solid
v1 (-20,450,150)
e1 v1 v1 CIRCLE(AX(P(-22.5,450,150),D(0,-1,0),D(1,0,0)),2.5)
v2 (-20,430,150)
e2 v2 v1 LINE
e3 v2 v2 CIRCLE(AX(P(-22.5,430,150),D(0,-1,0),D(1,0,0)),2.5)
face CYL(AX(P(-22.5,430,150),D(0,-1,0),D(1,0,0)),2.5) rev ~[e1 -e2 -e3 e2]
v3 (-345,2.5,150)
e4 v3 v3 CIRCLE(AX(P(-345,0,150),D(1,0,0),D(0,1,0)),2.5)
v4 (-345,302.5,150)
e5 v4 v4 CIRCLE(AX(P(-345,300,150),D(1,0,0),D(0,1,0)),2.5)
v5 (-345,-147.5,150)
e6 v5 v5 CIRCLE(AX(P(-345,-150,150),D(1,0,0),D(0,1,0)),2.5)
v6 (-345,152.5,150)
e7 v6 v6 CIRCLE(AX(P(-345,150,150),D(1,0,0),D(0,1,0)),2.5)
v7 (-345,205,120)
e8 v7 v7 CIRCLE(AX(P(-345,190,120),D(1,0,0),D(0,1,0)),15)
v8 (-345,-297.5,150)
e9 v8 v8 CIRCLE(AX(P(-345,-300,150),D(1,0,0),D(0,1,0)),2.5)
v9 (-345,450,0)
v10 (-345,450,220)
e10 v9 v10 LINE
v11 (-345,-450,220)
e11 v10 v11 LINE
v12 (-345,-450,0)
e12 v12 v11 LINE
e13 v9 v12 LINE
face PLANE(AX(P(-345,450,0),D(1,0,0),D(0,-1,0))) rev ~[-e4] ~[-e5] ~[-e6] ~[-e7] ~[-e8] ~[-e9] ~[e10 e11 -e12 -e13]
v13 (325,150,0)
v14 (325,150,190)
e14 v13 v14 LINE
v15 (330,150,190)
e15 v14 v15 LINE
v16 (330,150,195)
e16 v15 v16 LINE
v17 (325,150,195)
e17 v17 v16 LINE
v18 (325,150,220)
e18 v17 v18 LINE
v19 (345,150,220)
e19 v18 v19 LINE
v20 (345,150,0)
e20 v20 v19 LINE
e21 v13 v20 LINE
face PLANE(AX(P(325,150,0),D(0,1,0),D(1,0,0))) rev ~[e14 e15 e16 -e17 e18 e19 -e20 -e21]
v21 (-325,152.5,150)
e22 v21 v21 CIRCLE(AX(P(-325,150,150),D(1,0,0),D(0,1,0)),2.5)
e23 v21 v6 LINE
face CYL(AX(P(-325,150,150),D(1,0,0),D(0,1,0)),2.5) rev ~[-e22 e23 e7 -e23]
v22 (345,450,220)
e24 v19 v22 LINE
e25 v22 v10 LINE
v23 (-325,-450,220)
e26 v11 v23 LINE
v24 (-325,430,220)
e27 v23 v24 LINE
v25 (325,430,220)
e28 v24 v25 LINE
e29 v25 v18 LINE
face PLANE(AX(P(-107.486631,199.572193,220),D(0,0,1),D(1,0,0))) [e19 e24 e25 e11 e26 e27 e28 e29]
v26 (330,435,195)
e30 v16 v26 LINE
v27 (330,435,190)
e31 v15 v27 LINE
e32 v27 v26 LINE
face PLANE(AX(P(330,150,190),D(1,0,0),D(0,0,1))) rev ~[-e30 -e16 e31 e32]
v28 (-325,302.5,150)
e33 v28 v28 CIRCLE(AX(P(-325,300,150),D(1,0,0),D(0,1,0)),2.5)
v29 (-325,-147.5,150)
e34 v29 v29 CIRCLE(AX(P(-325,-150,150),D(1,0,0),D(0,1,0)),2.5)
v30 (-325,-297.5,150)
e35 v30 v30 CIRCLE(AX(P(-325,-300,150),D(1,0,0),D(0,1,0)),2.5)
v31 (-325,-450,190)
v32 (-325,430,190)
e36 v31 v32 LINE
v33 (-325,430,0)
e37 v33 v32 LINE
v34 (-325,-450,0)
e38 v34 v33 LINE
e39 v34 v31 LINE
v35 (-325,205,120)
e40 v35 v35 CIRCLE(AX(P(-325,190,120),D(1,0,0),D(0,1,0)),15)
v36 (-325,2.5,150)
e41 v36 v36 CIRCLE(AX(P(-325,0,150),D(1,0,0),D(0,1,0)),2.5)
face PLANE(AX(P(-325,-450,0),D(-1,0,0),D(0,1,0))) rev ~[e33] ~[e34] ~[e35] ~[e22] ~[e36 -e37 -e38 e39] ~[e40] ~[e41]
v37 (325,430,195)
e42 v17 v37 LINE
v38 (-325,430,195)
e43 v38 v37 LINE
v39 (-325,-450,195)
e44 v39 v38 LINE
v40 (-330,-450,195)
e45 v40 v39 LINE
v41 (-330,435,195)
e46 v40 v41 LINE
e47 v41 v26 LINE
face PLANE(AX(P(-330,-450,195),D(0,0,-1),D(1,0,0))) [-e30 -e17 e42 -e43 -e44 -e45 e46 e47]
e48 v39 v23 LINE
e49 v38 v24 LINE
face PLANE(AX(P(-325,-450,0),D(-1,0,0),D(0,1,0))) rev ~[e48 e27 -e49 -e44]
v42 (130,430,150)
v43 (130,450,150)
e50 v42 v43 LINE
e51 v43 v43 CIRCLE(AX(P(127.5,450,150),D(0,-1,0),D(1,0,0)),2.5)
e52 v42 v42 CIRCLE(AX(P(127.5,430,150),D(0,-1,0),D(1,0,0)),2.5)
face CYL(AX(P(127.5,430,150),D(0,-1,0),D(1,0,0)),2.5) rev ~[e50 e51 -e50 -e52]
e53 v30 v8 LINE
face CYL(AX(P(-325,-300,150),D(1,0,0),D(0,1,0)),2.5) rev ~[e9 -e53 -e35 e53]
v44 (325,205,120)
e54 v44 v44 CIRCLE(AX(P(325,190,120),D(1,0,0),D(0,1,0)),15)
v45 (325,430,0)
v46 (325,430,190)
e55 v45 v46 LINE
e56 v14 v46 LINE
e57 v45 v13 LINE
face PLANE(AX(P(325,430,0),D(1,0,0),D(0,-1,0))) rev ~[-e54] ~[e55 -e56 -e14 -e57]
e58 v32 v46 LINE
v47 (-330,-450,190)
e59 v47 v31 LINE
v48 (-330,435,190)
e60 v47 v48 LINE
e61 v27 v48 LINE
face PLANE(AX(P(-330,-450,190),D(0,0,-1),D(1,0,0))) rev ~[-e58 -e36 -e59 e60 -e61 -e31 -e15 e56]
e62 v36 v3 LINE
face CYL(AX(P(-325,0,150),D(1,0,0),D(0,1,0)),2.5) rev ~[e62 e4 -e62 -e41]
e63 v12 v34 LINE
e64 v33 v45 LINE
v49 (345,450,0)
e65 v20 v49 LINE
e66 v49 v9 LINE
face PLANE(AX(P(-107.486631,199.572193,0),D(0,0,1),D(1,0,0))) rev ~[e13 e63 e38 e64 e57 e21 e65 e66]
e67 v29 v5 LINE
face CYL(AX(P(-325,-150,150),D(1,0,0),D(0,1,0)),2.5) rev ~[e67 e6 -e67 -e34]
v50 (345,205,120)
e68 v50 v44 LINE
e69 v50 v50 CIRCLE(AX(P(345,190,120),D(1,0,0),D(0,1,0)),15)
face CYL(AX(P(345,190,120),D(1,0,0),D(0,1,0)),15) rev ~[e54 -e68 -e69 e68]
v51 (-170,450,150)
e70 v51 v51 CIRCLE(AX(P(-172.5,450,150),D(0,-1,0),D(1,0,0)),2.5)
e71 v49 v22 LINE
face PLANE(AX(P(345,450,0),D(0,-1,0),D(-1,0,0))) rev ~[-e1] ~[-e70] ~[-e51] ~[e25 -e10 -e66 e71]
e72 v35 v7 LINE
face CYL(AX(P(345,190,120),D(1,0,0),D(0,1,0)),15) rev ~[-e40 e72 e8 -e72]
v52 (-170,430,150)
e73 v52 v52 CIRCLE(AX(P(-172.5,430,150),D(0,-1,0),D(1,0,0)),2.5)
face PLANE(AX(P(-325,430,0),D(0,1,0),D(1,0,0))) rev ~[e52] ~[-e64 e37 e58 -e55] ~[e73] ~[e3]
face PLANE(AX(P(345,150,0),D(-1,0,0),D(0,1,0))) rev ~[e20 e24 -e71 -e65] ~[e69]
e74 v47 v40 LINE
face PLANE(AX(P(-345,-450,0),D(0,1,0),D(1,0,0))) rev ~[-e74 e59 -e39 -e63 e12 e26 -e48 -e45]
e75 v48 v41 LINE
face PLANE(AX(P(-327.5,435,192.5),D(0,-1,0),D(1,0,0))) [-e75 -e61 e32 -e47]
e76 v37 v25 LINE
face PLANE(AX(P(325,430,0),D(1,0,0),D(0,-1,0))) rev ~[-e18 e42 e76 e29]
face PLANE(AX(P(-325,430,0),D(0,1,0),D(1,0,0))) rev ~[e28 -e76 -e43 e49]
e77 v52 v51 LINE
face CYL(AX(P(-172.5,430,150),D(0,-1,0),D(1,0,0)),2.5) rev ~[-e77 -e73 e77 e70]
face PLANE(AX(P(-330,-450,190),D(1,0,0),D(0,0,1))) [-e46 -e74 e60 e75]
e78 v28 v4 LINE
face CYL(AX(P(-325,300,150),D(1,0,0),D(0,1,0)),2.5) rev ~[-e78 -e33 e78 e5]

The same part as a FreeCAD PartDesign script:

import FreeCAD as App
import Part
import Sketcher
from FreeCAD import Vector
Q = App.Units.Quantity

doc = App.newDocument("Part")
body = doc.addObject("PartDesign::Body", "Body")

sketch1 = body.newObject("Sketcher::SketchObject", "Sketch")
sketch1.AttachmentSupport = (doc.getObject("XY_Plane"), [""])
sketch1.MapMode = "FlatFace"
sketch1.addGeometry([
    Part.LineSegment(Vector(-345, -450, 0), Vector(-325, -450, 0)),
    Part.LineSegment(Vector(-325, -450, 0), Vector(-325, 430, 0)),
    Part.LineSegment(Vector(-325, 430, 0), Vector(325, 430, 0)),
    Part.LineSegment(Vector(325, 430, 0), Vector(325, 150, 0)),
    Part.LineSegment(Vector(325, 150, 0), Vector(345, 150, 0)),
    Part.LineSegment(Vector(345, 150, 0), Vector(345, 450, 0)),
    Part.LineSegment(Vector(345, 450, 0), Vector(-345, 450, 0)),
    Part.LineSegment(Vector(-345, 450, 0), Vector(-345, -450, 0)),
], False)
sketch1.addConstraint([
    Sketcher.Constraint("Coincident", 0, 2, 1, 1),
    Sketcher.Constraint("Coincident", 1, 2, 2, 1),
    Sketcher.Constraint("Coincident", 2, 2, 3, 1),
    Sketcher.Constraint("Coincident", 3, 2, 4, 1),
    Sketcher.Constraint("Coincident", 4, 2, 5, 1),
    Sketcher.Constraint("Coincident", 5, 2, 6, 1),
    Sketcher.Constraint("Coincident", 6, 2, 7, 1),
    Sketcher.Constraint("Coincident", 7, 2, 0, 1),
    Sketcher.Constraint("Horizontal", 0),
    Sketcher.Constraint("Vertical", 1),
    Sketcher.Constraint("Horizontal", 2),
    Sketcher.Constraint("Vertical", 3),
    Sketcher.Constraint("Horizontal", 4),
    Sketcher.Constraint("Vertical", 5),
    Sketcher.Constraint("Horizontal", 6),
    Sketcher.Constraint("Vertical", 7),
    Sketcher.Constraint("Symmetric", 5, 2, 7, 2, -1, 1),
    Sketcher.Constraint("Equal", 0, 4),
    Sketcher.Constraint("DistanceX", 0, 1, 0, 2, Q("20 mm")),
    Sketcher.Constraint("DistanceX", 2, 1, 2, 2, Q("650 mm")),
    Sketcher.Constraint("DistanceY", 1, 1, 1, 2, Q("880 mm")),
    Sketcher.Constraint("DistanceY", 3, 2, 3, 1, Q("280 mm")),
    Sketcher.Constraint("DistanceY", 5, 1, 5, 2, Q("300 mm")),
])
pad1 = body.newObject("PartDesign::Pad", "Pad")
pad1.Profile = sketch1
pad1.Length = 220

sketch2 = body.newObject("Sketcher::SketchObject", "Sketch001")
sketch2.AttachmentSupport = (doc.getObject("XZ_Plane"), [""])
sketch2.MapMode = "FlatFace"
sketch2.AttachmentOffset = App.Placement(Vector(0, 0, 450), App.Rotation())
sketch2.addGeometry([
    Part.LineSegment(Vector(-330, 195, 0), Vector(-330, 190, 0)),
    Part.LineSegment(Vector(-330, 190, 0), Vector(-325, 190, 0)),
    Part.LineSegment(Vector(-325, 190, 0), Vector(-325, 195, 0)),
    Part.LineSegment(Vector(-325, 195, 0), Vector(-330, 195, 0)),
], False)
sketch2.addConstraint([
    Sketcher.Constraint("Coincident", 0, 2, 1, 1),
    Sketcher.Constraint("Coincident", 1, 2, 2, 1),
    Sketcher.Constraint("Coincident", 2, 2, 3, 1),
    Sketcher.Constraint("Coincident", 3, 2, 0, 1),
    Sketcher.Constraint("Vertical", 0),
    Sketcher.Constraint("Horizontal", 1),
    Sketcher.Constraint("Vertical", 2),
    Sketcher.Constraint("Horizontal", 3),
    Sketcher.Constraint("Equal", 3, 0),
    Sketcher.Constraint("DistanceX", 1, 1, 1, 2, Q("5 mm")),
    Sketcher.Constraint("DistanceX", 0, 2, -1, 1, Q("330 mm")),
    Sketcher.Constraint("DistanceY", -1, 1, 0, 2, Q("190 mm")),
])
pocket1 = body.newObject("PartDesign::Pocket", "Pocket")
pocket1.Profile = sketch2
pocket1.Length = 885

sketch3 = body.newObject("Sketcher::SketchObject", "Sketch002")
sketch3.AttachmentSupport = (doc.getObject("XZ_Plane"), [""])
sketch3.MapMode = "FlatFace"
sketch3.AttachmentOffset = App.Placement(Vector(0, 0, -430), App.Rotation())
sketch3.addGeometry([
    Part.LineSegment(Vector(-325, 195, 0), Vector(-325, 190, 0)),
    Part.LineSegment(Vector(-325, 190, 0), Vector(325, 190, 0)),
    Part.LineSegment(Vector(325, 190, 0), Vector(325, 195, 0)),
    Part.LineSegment(Vector(325, 195, 0), Vector(-325, 195, 0)),
], False)
sketch3.addConstraint([
    Sketcher.Constraint("Coincident", 0, 2, 1, 1),
    Sketcher.Constraint("Coincident", 1, 2, 2, 1),
    Sketcher.Constraint("Coincident", 2, 2, 3, 1),
    Sketcher.Constraint("Coincident", 3, 2, 0, 1),
    Sketcher.Constraint("Vertical", 0),
    Sketcher.Constraint("Horizontal", 1),
    Sketcher.Constraint("Vertical", 2),
    Sketcher.Constraint("Horizontal", 3),
    Sketcher.Constraint("DistanceX", 1, 1, 1, 2, Q("650 mm")),
    Sketcher.Constraint("DistanceY", 0, 2, 0, 1, Q("5 mm")),
    Sketcher.Constraint("DistanceX", 0, 2, -1, 1, Q("325 mm")),
    Sketcher.Constraint("DistanceY", -1, 1, 0, 2, Q("190 mm")),
])
pocket2 = body.newObject("PartDesign::Pocket", "Pocket001")
pocket2.Profile = sketch3
pocket2.Length = 5

sketch4 = body.newObject("Sketcher::SketchObject", "Sketch003")
sketch4.AttachmentSupport = (doc.getObject("XZ_Plane"), [""])
sketch4.MapMode = "FlatFace"
sketch4.AttachmentOffset = App.Placement(Vector(0, 0, -150), App.Rotation())
sketch4.addGeometry([
    Part.LineSegment(Vector(325, 195, 0), Vector(325, 190, 0)),
    Part.LineSegment(Vector(325, 190, 0), Vector(330, 190, 0)),
    Part.LineSegment(Vector(330, 190, 0), Vector(330, 195, 0)),
    Part.LineSegment(Vector(330, 195, 0), Vector(325, 195, 0)),
], False)
sketch4.addConstraint([
    Sketcher.Constraint("Coincident", 0, 2, 1, 1),
    Sketcher.Constraint("Coincident", 1, 2, 2, 1),
    Sketcher.Constraint("Coincident", 2, 2, 3, 1),
    Sketcher.Constraint("Coincident", 3, 2, 0, 1),
    Sketcher.Constraint("Vertical", 0),
    Sketcher.Constraint("Horizontal", 1),
    Sketcher.Constraint("Vertical", 2),
    Sketcher.Constraint("Horizontal", 3),
    Sketcher.Constraint("Equal", 3, 0),
    Sketcher.Constraint("DistanceX", 1, 1, 1, 2, Q("5 mm")),
    Sketcher.Constraint("DistanceX", -1, 1, 0, 2, Q("325 mm")),
    Sketcher.Constraint("DistanceY", -1, 1, 0, 2, Q("190 mm")),
])
pocket3 = body.newObject("PartDesign::Pocket", "Pocket002")
pocket3.Profile = sketch4
pocket3.Length = 285

sketch5 = body.newObject("Sketcher::SketchObject", "Sketch004")
sketch5.AttachmentSupport = (doc.getObject("YZ_Plane"), [""])
sketch5.MapMode = "FlatFace"
sketch5.AttachmentOffset = App.Placement(Vector(0, 0, 345), App.Rotation())
sketch5.addGeometry(Part.Circle(Vector(190, 120, 0), Vector(0, 0, 1), 15), False)
sketch5.addConstraint([
    Sketcher.Constraint("Diameter", 0, Q("30 mm")),
    Sketcher.Constraint("DistanceX", -1, 1, 0, 3, Q("190 mm")),
    Sketcher.Constraint("DistanceY", -1, 1, 0, 3, Q("120 mm")),
])
pocket4 = body.newObject("PartDesign::Pocket", "Pocket003")
pocket4.Profile = sketch5
pocket4.Length = 800

sketch6 = body.newObject("Sketcher::SketchObject", "Sketch005")
sketch6.AttachmentSupport = (doc.getObject("YZ_Plane"), [""])
sketch6.MapMode = "FlatFace"
sketch6.AttachmentOffset = App.Placement(Vector(0, 0, -325), App.Rotation())
sketch6.addGeometry([
    Part.Circle(Vector(-300, 150, 0), Vector(0, 0, 1), 2.5),
    Part.Circle(Vector(-150, 150, 0), Vector(0, 0, 1), 2.5),
    Part.Circle(Vector(0, 150, 0), Vector(0, 0, 1), 2.5),
    Part.Circle(Vector(150, 150, 0), Vector(0, 0, 1), 2.5),
    Part.Circle(Vector(300, 150, 0), Vector(0, 0, 1), 2.5),
], False)
sketch6.addConstraint([
    Sketcher.Constraint("Equal", 0, 1),
    Sketcher.Constraint("Equal", 1, 2),
    Sketcher.Constraint("Equal", 2, 3),
    Sketcher.Constraint("Equal", 3, 4),
    Sketcher.Constraint("Symmetric", 1, 3, 3, 3, -2),
    Sketcher.Constraint("Symmetric", 0, 3, 4, 3, -2),
    Sketcher.Constraint("PointOnObject", 2, 3, -2),
    Sketcher.Constraint("Horizontal", 0, 3, 1, 3),
    Sketcher.Constraint("Horizontal", 1, 3, 2, 3),
    Sketcher.Constraint("Diameter", 0, Q("5 mm")),
    Sketcher.Constraint("DistanceX", 0, 3, -1, 1, Q("300 mm")),
    Sketcher.Constraint("DistanceY", -1, 1, 0, 3, Q("150 mm")),
    Sketcher.Constraint("DistanceX", 1, 3, -1, 1, Q("150 mm")),
])
pocket5 = body.newObject("PartDesign::Pocket", "Pocket004")
pocket5.Profile = sketch6
pocket5.Length = 25

sketch7 = body.newObject("Sketcher::SketchObject", "Sketch006")
sketch7.AttachmentSupport = (doc.getObject("XZ_Plane"), [""])
sketch7.MapMode = "FlatFace"
sketch7.AttachmentOffset = App.Placement(Vector(0, 0, -430), App.Rotation())
sketch7.addGeometry([
    Part.Circle(Vector(-172.5, 150, 0), Vector(0, 0, 1), 2.5),
    Part.Circle(Vector(-22.5, 150, 0), Vector(0, 0, 1), 2.5),
    Part.Circle(Vector(127.5, 150, 0), Vector(0, 0, 1), 2.5),
], False)
sketch7.addConstraint([
    Sketcher.Constraint("Equal", 0, 1),
    Sketcher.Constraint("Equal", 1, 2),
    Sketcher.Constraint("Horizontal", 0, 3, 1, 3),
    Sketcher.Constraint("Horizontal", 1, 3, 2, 3),
    Sketcher.Constraint("Diameter", 0, Q("5 mm")),
    Sketcher.Constraint("DistanceY", -1, 1, 0, 3, Q("150 mm")),
    Sketcher.Constraint("DistanceX", 0, 3, 1, 3, Q("150 mm")),
    Sketcher.Constraint("DistanceX", 1, 3, 2, 3, Q("150 mm")),
    Sketcher.Constraint("DistanceX", 0, 3, -1, 1, Q("172.5 mm")),
])
pocket6 = body.newObject("PartDesign::Pocket", "Pocket005")
pocket6.Profile = sketch7
pocket6.Length = 25

doc.recompute()
